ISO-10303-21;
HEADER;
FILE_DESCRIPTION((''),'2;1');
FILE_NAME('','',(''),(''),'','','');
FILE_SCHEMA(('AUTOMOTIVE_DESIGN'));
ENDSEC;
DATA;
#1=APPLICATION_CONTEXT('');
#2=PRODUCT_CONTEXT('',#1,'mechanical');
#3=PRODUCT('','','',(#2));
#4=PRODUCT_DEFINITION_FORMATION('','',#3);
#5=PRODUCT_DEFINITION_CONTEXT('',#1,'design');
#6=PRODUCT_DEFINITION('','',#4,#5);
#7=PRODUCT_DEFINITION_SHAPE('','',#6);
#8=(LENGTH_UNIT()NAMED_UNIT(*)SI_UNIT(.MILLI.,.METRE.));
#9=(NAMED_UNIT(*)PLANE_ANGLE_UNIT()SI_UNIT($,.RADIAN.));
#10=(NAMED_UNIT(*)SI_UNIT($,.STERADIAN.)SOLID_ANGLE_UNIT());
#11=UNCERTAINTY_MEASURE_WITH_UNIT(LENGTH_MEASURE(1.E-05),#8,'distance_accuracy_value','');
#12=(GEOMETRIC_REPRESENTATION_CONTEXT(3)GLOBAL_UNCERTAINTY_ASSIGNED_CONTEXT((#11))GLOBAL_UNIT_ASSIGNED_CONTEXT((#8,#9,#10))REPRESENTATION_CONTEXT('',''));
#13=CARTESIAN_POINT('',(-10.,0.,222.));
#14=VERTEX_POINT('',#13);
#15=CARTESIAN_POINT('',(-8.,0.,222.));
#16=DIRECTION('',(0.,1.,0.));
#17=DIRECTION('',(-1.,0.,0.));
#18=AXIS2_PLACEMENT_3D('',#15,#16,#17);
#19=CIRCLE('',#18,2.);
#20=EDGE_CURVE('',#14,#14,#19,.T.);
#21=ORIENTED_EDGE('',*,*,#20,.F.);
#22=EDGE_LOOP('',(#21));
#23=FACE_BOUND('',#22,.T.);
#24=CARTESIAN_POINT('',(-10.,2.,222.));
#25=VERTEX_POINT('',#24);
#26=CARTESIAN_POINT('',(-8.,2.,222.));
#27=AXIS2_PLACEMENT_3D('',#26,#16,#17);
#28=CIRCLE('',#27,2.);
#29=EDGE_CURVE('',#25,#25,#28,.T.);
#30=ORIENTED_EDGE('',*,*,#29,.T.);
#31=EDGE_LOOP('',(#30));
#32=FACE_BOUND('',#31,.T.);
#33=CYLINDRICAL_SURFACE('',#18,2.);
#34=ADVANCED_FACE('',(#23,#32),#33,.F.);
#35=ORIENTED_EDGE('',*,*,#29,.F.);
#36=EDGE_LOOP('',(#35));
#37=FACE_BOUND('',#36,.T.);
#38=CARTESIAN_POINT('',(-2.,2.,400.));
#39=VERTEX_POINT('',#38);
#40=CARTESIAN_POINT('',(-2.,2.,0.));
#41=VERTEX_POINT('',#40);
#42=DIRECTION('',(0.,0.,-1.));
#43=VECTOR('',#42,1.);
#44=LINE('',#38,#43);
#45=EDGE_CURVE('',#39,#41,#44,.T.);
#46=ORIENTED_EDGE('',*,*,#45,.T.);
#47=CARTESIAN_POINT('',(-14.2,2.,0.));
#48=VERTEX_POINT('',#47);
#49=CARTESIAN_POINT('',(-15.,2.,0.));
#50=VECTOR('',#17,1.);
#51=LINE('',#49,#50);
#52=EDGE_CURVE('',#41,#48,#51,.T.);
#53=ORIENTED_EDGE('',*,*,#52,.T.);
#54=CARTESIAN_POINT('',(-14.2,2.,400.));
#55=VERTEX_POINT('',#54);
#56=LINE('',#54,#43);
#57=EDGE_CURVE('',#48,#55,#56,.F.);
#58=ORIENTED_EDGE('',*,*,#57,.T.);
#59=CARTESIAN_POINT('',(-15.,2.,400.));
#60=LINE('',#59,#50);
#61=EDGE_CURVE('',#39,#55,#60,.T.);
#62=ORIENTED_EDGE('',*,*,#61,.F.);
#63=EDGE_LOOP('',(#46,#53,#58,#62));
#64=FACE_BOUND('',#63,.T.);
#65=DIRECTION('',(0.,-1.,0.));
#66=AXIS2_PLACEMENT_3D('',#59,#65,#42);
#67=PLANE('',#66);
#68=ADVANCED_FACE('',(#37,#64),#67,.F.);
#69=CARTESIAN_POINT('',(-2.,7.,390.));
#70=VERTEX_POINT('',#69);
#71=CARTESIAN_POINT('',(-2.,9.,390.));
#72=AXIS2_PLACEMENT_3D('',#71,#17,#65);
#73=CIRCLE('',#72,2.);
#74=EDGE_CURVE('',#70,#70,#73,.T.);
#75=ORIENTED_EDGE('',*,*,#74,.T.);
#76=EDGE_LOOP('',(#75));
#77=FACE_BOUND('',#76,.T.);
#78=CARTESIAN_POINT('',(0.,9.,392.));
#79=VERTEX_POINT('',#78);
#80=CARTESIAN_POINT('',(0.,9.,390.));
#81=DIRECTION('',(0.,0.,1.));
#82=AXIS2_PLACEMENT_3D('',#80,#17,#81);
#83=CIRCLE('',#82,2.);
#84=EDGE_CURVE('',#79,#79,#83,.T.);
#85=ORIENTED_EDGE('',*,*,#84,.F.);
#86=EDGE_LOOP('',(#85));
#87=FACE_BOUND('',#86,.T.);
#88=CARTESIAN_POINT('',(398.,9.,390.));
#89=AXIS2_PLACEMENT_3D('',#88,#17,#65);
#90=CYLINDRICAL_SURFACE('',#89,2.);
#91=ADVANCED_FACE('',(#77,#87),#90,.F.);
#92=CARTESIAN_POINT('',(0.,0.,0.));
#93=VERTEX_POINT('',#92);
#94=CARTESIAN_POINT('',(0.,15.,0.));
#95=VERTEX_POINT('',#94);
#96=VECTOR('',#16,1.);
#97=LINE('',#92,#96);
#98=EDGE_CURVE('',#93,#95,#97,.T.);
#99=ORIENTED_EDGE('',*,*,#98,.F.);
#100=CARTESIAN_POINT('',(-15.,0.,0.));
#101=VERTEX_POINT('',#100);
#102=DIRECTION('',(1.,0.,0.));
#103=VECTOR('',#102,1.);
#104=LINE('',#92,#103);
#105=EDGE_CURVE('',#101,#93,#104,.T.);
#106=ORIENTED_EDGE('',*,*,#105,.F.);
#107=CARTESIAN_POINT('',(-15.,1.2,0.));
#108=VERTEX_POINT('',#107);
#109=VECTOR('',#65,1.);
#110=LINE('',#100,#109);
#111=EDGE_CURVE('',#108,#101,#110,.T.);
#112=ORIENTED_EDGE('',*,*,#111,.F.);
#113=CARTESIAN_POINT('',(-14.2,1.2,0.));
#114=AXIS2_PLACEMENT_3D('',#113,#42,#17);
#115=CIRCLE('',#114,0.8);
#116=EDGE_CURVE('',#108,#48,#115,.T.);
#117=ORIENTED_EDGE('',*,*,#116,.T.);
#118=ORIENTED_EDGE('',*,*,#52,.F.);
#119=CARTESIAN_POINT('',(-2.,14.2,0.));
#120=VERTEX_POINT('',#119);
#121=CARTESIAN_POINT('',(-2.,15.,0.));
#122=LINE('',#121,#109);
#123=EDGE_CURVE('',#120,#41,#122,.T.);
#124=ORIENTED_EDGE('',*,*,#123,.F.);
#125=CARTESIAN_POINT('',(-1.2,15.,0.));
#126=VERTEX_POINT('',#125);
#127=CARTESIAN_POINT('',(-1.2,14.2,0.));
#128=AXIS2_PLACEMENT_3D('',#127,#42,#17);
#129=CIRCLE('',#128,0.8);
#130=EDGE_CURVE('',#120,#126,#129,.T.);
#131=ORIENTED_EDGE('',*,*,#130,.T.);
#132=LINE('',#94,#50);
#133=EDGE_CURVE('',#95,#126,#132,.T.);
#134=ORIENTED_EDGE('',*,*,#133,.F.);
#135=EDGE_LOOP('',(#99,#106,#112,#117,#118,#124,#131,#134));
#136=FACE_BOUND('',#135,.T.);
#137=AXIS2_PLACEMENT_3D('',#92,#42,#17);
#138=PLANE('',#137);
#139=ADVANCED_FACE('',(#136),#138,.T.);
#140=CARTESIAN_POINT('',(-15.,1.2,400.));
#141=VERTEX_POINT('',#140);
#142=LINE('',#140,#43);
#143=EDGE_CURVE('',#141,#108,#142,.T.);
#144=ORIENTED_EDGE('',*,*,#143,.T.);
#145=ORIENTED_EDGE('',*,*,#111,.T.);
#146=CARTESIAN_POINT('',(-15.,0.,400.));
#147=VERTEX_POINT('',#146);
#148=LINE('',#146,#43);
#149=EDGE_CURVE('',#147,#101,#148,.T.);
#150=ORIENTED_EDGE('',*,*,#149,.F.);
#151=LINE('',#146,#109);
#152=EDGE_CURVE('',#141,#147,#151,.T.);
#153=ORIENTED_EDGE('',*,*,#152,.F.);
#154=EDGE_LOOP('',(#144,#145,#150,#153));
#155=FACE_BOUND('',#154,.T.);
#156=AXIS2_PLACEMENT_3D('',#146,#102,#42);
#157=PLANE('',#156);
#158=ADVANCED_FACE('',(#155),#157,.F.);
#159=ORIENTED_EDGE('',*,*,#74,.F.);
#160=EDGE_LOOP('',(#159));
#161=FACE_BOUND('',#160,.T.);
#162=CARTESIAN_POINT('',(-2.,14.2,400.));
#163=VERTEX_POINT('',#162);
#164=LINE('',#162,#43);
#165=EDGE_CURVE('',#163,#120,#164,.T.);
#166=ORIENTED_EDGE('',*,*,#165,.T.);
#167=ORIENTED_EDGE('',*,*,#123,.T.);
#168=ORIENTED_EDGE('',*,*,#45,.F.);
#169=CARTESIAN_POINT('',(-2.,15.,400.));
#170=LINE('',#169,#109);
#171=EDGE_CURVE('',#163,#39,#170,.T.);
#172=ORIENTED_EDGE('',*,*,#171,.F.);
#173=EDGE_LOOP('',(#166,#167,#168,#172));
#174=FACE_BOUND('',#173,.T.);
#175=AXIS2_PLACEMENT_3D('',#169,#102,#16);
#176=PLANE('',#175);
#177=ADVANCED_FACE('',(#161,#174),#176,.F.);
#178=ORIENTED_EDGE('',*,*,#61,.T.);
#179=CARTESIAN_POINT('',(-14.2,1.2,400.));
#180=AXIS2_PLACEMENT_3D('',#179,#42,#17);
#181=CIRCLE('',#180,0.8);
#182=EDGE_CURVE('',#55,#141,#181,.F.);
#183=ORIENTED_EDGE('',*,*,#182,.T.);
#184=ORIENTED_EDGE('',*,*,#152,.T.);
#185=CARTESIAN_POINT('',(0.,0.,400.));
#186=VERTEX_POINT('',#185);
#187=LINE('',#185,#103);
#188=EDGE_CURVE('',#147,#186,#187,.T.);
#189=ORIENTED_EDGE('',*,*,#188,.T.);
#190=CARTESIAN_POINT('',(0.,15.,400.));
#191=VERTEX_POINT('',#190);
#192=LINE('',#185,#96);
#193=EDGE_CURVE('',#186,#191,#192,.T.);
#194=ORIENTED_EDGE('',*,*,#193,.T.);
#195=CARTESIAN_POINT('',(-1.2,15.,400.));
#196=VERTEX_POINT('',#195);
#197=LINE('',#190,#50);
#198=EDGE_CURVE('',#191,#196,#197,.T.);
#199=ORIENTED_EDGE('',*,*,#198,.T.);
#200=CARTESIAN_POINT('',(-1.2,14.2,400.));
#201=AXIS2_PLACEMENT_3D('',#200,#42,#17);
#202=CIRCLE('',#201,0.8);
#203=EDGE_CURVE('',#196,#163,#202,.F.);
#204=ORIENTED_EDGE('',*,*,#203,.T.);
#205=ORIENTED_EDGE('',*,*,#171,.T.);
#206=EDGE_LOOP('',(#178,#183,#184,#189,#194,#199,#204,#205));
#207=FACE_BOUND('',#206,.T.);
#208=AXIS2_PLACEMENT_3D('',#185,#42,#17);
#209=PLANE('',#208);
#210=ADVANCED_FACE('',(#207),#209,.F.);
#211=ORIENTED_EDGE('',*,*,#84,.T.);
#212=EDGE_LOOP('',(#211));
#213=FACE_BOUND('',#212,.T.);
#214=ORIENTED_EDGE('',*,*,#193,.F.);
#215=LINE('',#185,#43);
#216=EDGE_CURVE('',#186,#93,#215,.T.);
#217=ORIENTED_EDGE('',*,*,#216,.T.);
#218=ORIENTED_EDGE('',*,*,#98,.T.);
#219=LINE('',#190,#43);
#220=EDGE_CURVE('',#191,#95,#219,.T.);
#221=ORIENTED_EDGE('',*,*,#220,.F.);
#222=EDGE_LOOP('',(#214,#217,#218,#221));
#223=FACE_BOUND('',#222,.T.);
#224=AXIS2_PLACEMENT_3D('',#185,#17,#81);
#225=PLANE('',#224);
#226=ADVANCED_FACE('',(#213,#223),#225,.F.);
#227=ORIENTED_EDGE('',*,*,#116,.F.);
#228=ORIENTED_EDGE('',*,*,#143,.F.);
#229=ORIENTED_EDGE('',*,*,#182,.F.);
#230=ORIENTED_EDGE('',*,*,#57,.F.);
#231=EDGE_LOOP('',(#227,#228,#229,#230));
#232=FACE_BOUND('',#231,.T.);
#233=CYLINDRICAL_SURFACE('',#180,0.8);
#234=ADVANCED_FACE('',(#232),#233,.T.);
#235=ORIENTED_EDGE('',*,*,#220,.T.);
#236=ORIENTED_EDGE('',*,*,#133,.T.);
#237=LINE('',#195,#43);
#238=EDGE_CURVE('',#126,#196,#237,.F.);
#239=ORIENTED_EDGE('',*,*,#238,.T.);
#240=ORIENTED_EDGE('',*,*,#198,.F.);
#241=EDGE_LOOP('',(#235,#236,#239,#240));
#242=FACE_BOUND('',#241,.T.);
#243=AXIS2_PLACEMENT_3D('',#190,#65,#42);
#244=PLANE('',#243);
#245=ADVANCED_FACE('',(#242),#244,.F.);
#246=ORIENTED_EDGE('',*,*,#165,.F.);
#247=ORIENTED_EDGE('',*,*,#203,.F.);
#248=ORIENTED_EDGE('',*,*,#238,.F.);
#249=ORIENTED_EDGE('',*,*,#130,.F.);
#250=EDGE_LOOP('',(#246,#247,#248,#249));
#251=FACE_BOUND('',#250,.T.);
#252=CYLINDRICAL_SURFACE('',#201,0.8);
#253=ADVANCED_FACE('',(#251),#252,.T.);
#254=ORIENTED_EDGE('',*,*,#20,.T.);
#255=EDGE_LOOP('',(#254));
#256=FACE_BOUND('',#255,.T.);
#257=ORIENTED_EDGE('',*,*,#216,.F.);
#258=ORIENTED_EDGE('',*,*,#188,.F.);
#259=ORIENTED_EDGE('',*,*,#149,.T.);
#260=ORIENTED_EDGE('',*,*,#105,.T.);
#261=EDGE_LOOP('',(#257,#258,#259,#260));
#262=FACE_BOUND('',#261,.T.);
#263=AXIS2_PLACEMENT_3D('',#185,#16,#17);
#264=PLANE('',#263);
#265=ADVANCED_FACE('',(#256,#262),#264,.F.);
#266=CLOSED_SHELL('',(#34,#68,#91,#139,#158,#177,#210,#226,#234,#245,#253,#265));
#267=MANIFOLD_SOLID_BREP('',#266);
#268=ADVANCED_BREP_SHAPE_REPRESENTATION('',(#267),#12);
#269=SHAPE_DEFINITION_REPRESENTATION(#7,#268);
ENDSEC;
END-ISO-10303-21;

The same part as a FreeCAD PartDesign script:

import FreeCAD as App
import Part
import Sketcher


def edges_at(feature, points):
    """Names of the edges that pass closest to the given points."""
    edges = feature.Shape.Edges
    near = lambda p: min(range(len(edges)), key=lambda i: edges[i].distToShape(Part.Vertex(*p))[0])
    return sorted({f"Edge{near(p) + 1}" for p in points})


def add_polygon(sketch, points):
    """Adds a closed chain of lines whose ends are joined by coincident constraints."""
    first, n = sketch.GeometryCount, len(points)
    for a, b in zip(points, points[1:] + points[:1]):
        sketch.addGeometry(Part.LineSegment(App.Vector(*a, 0), App.Vector(*b, 0)), False)
    for i in range(n):
        sketch.addConstraint(Sketcher.Constraint("Coincident", first + i, 2, first + (i + 1) % n, 1))

doc = App.newDocument("Part")
body = doc.addObject("PartDesign::Body", "Body")

# Sketch on XY plane
sketch1 = body.newObject("Sketcher::SketchObject", "Sketch")
sketch1.AttachmentSupport = (doc.getObject("XY_Plane"), [""])
sketch1.MapMode = "FlatFace"
add_polygon(sketch1, [(0, 0), (0, 15), (-2, 15), (-2, 2), (-15, 2), (-15, 0)])  # lines 0-5
sketch1.addConstraint([
    Sketcher.Constraint("Vertical", 0),
    Sketcher.Constraint("Horizontal", 1),
    Sketcher.Constraint("Vertical", 2),
    Sketcher.Constraint("Horizontal", 3),
    Sketcher.Constraint("Vertical", 4),
    Sketcher.Constraint("Horizontal", 5),
    Sketcher.Constraint("Coincident", 5, 2, -1, 1),
    Sketcher.Constraint("Equal", 5, 0),
    Sketcher.Constraint("Equal", 3, 2),
    Sketcher.Constraint("DistanceX", 1, 2, 1, 1, 2.0),
    Sketcher.Constraint("DistanceX", 3, 2, 3, 1, 13.0),
])
pad1 = body.newObject("PartDesign::Pad", "Pad")
pad1.Profile = sketch1
pad1.Length = 400
doc.recompute()

fillet = body.newObject("PartDesign::Fillet", "Fillet")
fillet.Base = (pad1, edges_at(pad1, [(-15, 2, 200), (-2, 15, 200)]))
fillet.Radius = 0.8

# Sketch on XZ plane
sketch2 = body.newObject("Sketcher::SketchObject", "Sketch001")
sketch2.AttachmentSupport = (doc.getObject("XZ_Plane"), [""])
sketch2.MapMode = "FlatFace"
sketch2.AttachmentOffset = App.Placement(App.Vector(0, 0, -2), App.Rotation())
sketch2.addGeometry(Part.Circle(App.Vector(-8, 222, 0), App.Vector(0, 0, 1), 2), False)
sketch2.addConstraint([
    Sketcher.Constraint("Diameter", 0, 4.0),
    Sketcher.Constraint("DistanceX", 0, 3, -1, 1, 8.0),
    Sketcher.Constraint("DistanceY", -1, 1, 0, 3, 222.0),
])
pocket1 = body.newObject("PartDesign::Pocket", "Pocket")
pocket1.Profile = sketch2
pocket1.Length = 2
pocket1.Reversed = True

# Sketch on YZ plane
sketch3 = body.newObject("Sketcher::SketchObject", "Sketch002")
sketch3.AttachmentSupport = (doc.getObject("YZ_Plane"), [""])
sketch3.MapMode = "FlatFace"
sketch3.AttachmentOffset = App.Placement(App.Vector(0, 0, -2), App.Rotation())
sketch3.addGeometry(Part.Circle(App.Vector(9, 390, 0), App.Vector(0, 0, 1), 2), False)
sketch3.addConstraint([
    Sketcher.Constraint("Diameter", 0, 4.0),
    Sketcher.Constraint("DistanceX", -1, 1, 0, 3, 9.0),
    Sketcher.Constraint("DistanceY", -1, 1, 0, 3, 390.0),
])
pocket2 = body.newObject("PartDesign::Pocket", "Pocket001")
pocket2.Profile = sketch3
pocket2.Length = 400
pocket2.Reversed = True

doc.recompute()
